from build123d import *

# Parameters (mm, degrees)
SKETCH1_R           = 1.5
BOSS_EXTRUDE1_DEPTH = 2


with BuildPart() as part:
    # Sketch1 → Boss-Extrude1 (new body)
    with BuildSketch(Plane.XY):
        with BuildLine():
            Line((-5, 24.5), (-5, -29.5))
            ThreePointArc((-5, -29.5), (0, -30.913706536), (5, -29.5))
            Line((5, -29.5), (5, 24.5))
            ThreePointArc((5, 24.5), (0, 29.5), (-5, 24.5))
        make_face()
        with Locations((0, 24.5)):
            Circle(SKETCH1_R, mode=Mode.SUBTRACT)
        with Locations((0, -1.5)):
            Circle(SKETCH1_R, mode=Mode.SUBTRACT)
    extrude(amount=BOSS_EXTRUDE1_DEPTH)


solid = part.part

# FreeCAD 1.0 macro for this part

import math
import FreeCAD as App
import Part
import Sketcher
from FreeCAD import Vector

doc = App.newDocument("Part")
params = doc.addObject("Spreadsheet::Sheet", "Params")
for row, (alias, value) in enumerate([
    ("sketch1_diameter", "3 mm"),
    ("sketch1_radius", "5 mm"),
    ("sketch1_height", "54 mm"),
    ("pad1_length", "2 mm"),
], start=1):
    params.set(f"A{row}", alias)
    params.set(f"B{row}", "=" + value)
    params.setAlias(f"B{row}", alias)

body = doc.addObject("PartDesign::Body", "Body")

sketch1 = doc.addObject("Sketcher::SketchObject", "Sketch")
body.addObject(sketch1)
sketch1.AttachmentSupport = (doc.XY_Plane, [""])
sketch1.MapMode = "FlatFace"
sketch1.addGeometry([
    Part.LineSegment(Vector(-5, 24.5, 0), Vector(-5, -29.5, 0)),
    Part.ArcOfCircle(Part.Circle(Vector(0, -21.4, 0), Vector(0, 0, 1), 9.5), math.radians(-122), math.radians(-58)),
    Part.LineSegment(Vector(5, -29.5, 0), Vector(5, 24.5, 0)),
    Part.ArcOfCircle(Part.Circle(Vector(0, 24.5, 0), Vector(0, 0, 1), 5), math.radians(0), math.radians(180)),
    Part.Circle(Vector(0, -1.5, 0), Vector(0, 0, 1), 1.5),
    Part.Circle(Vector(0, 24.5, 0), Vector(0, 0, 1), 1.5),
], False)
sketch1.addConstraint([
    Sketcher.Constraint("Coincident", 0, 2, 1, 1),
    Sketcher.Constraint("Coincident", 1, 2, 2, 1),
    Sketcher.Constraint("Tangent", 2, 2, 3, 1),
    Sketcher.Constraint("Tangent", 3, 2, 0, 1),
    Sketcher.Constraint("Vertical", 0),
    Sketcher.Constraint("Vertical", 2),
    Sketcher.Constraint("Coincident", 5, 3, 3, 3),
    Sketcher.Constraint("Equal", 4, 5),
    Sketcher.Constraint("Symmetric", 0, 2, 1, 2, -2),
    Sketcher.Constraint("PointOnObject", 4, 3, -2),
    Sketcher.Constraint("Diameter", 4, 3.0),
    Sketcher.Constraint("Radius", 3, 5.0),
    Sketcher.Constraint("DistanceY", 0, 2, 0, 1, 54.0),
    Sketcher.Constraint("DistanceY", 4, 3, 3, 3, 26.0),
    Sketcher.Constraint("DistanceY", -1, 1, 3, 3, 24.5),
    Sketcher.Constraint("Radius", 1, 9.548858),
])
sketch1.setExpression("Constraints[10]", "Params.sketch1_diameter")
sketch1.setExpression("Constraints[11]", "Params.sketch1_radius")
sketch1.setExpression("Constraints[12]", "Params.sketch1_height")
pad1 = doc.addObject("PartDesign::Pad", "Pad")
body.addObject(pad1)
pad1.Profile = sketch1
pad1.setExpression("Length", "Params.pad1_length")

doc.recompute()
